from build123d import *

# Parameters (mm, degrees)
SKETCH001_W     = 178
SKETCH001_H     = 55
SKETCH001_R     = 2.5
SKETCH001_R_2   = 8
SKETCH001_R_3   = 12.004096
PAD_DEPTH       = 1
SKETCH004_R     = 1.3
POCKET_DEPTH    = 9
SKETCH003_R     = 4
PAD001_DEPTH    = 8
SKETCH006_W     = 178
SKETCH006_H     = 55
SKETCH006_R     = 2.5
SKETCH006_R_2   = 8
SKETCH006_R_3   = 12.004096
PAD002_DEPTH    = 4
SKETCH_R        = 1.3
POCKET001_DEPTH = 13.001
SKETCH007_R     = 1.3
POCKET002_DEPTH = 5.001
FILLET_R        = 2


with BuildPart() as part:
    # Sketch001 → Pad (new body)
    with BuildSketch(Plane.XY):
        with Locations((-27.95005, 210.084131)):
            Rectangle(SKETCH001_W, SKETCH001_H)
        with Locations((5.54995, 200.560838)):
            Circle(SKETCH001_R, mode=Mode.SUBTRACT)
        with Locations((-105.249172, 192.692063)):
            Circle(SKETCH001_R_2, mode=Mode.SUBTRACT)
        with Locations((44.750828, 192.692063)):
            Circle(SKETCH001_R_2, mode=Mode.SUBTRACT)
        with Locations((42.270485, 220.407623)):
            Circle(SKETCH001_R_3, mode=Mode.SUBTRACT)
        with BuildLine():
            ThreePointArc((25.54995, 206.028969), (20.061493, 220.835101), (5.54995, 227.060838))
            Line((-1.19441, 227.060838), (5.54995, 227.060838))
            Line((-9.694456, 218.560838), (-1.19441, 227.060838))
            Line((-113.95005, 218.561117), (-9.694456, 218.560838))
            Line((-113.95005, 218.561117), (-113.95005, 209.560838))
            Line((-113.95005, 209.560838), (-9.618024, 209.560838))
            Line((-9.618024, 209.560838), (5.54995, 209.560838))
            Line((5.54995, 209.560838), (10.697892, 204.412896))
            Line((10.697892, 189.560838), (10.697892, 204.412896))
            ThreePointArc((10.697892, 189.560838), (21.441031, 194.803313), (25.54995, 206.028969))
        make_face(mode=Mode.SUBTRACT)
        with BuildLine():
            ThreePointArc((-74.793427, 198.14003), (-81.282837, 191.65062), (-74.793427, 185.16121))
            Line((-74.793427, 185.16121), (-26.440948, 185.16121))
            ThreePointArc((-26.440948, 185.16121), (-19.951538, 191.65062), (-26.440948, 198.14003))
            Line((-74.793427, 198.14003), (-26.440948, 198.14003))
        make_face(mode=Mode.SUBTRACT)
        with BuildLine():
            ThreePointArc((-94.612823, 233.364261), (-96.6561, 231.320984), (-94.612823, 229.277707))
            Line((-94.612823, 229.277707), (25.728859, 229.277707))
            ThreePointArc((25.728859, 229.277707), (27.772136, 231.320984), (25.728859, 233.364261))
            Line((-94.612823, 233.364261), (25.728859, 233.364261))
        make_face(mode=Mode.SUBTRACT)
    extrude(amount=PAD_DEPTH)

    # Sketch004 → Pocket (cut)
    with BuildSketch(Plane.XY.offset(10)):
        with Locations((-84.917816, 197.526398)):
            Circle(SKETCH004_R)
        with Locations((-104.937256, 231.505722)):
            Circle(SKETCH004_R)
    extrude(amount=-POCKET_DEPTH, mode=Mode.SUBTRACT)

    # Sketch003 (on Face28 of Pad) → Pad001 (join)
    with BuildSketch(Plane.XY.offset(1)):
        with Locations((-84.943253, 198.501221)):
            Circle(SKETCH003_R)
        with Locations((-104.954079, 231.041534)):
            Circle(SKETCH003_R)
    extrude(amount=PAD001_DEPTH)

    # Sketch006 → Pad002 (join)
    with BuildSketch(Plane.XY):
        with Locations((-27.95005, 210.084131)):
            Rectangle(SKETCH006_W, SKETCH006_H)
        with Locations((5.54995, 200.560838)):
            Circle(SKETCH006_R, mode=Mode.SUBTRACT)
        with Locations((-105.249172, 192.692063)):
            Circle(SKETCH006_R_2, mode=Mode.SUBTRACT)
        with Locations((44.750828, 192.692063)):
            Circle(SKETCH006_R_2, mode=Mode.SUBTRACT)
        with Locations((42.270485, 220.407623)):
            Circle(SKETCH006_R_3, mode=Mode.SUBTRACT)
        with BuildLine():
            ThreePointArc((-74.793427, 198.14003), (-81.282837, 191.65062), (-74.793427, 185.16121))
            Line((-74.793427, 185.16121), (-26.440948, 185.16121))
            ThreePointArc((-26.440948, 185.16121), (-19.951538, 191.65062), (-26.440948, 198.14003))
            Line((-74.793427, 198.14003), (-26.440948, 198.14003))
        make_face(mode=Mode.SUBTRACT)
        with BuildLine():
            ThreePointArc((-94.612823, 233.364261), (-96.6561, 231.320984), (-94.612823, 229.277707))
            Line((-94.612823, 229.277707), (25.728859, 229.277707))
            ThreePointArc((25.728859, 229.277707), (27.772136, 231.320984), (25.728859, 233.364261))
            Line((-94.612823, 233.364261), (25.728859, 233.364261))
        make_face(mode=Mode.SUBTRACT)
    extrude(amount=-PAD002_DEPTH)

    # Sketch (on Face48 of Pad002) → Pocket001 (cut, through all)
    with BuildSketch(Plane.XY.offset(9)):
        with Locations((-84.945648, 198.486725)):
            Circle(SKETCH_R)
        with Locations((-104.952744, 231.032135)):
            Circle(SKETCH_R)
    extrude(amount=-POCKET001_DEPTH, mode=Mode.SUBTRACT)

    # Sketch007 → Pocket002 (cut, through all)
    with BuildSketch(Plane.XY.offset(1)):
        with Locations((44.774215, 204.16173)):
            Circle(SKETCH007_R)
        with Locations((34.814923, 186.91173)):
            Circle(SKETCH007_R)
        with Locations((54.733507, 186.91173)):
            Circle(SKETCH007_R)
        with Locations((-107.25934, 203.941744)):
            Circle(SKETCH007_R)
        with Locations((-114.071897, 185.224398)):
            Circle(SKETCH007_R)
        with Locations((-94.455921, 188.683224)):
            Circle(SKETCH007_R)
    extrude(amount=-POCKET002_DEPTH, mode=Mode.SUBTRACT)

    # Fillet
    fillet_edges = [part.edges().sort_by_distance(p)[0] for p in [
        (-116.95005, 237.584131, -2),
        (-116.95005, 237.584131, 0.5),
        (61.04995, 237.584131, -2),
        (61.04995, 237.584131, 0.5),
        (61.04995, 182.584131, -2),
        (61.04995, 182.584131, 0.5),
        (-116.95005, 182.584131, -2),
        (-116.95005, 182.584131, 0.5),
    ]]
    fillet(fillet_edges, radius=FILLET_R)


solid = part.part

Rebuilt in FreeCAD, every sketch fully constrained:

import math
import FreeCAD as App
import Part
import Sketcher
Q = App.Units.Quantity


def edges_at(feature, points):
    """Names of the edges that pass closest to the given points."""
    edges = feature.Shape.Edges
    near = lambda p: min(range(len(edges)), key=lambda i: edges[i].distToShape(Part.Vertex(*p))[0])
    return sorted({f"Edge{near(p) + 1}" for p in points})

doc = App.newDocument("Part")
body = doc.addObject("PartDesign::Body", "Body")

# Sketch on XY plane
sketch1 = doc.addObject("Sketcher::SketchObject", "Sketch")
body.addObject(sketch1)
sketch1.AttachmentSupport = (doc.XY_Plane, [""])
sketch1.MapMode = "FlatFace"
sketch1.addGeometry([
    Part.LineSegment(App.Vector(-117, 237.6, 0), App.Vector(-117, 182.6, 0)),  # 0
    Part.LineSegment(App.Vector(-117, 182.6, 0), App.Vector(61, 182.6, 0)),  # 1
    Part.LineSegment(App.Vector(61, 182.6, 0), App.Vector(61, 237.6, 0)),  # 2
    Part.LineSegment(App.Vector(61, 237.6, 0), App.Vector(-117, 237.6, 0)),  # 3
    Part.Circle(App.Vector(-105.2, 192.7, 0), App.Vector(0, 0, 1), 8),  # 4
    Part.ArcOfCircle(Part.Circle(App.Vector(-74.8, 191.7, 0), App.Vector(0, 0, 1), 6.5), math.radians(90), math.radians(270)),  # 5
    Part.LineSegment(App.Vector(-74.8, 198.1, 0), App.Vector(-26.4, 198.1, 0)),  # 6
    Part.ArcOfCircle(Part.Circle(App.Vector(-26.4, 191.7, 0), App.Vector(0, 0, 1), 6.5), math.radians(-90), math.radians(90)),  # 7
    Part.LineSegment(App.Vector(-26.4, 185.2, 0), App.Vector(-74.8, 185.2, 0)),  # 8
    Part.ArcOfCircle(Part.Circle(App.Vector(5.5, 207, 0), App.Vector(0, 0, 1), 20), math.radians(-3), math.radians(90)),  # 9
    Part.ArcOfCircle(Part.Circle(App.Vector(9.6, 205.5, 0), App.Vector(0, 0, 1), 16), math.radians(-86), math.radians(2)),  # 10
    Part.LineSegment(App.Vector(10.7, 189.6, 0), App.Vector(10.7, 204.4, 0)),  # 11
    Part.LineSegment(App.Vector(10.7, 204.4, 0), App.Vector(5.5, 209.6, 0)),  # 12
    Part.LineSegment(App.Vector(5.5, 209.6, 0), App.Vector(-114, 209.6, 0)),  # 13
    Part.LineSegment(App.Vector(-114, 209.6, 0), App.Vector(-114, 218.6, 0)),  # 14
    Part.LineSegment(App.Vector(-114, 218.6, 0), App.Vector(-9.7, 218.6, 0)),  # 15
    Part.LineSegment(App.Vector(-9.7, 218.6, 0), App.Vector(-1.2, 227.1, 0)),  # 16
    Part.LineSegment(App.Vector(-1.2, 227.1, 0), App.Vector(5.5, 227.1, 0)),  # 17
    Part.Circle(App.Vector(44.8, 192.7, 0), App.Vector(0, 0, 1), 8),  # 18
    Part.Circle(App.Vector(5.5, 200.6, 0), App.Vector(0, 0, 1), 2.5),  # 19
    Part.ArcOfCircle(Part.Circle(App.Vector(-94.6, 231.3, 0), App.Vector(0, 0, 1), 2), math.radians(90), math.radians(270)),  # 20
    Part.LineSegment(App.Vector(-94.6, 233.4, 0), App.Vector(25.7, 233.4, 0)),  # 21
    Part.ArcOfCircle(Part.Circle(App.Vector(25.7, 231.3, 0), App.Vector(0, 0, 1), 2), math.radians(-90), math.radians(90)),  # 22
    Part.LineSegment(App.Vector(25.7, 229.3, 0), App.Vector(-94.6, 229.3, 0)),  # 23
    Part.Circle(App.Vector(42.3, 220.4, 0), App.Vector(0, 0, 1), 12),  # 24
], False)
sketch1.addConstraint([
    Sketcher.Constraint("Coincident", 0, 2, 1, 1),
    Sketcher.Constraint("Coincident", 1, 2, 2, 1),
    Sketcher.Constraint("Coincident", 2, 2, 3, 1),
    Sketcher.Constraint("Coincident", 3, 2, 0, 1),
    Sketcher.Constraint("Tangent", 5, 1, 6, 1),
    Sketcher.Constraint("Tangent", 6, 2, 7, 2),
    Sketcher.Constraint("Tangent", 7, 1, 8, 1),
    Sketcher.Constraint("Tangent", 8, 2, 5, 2),
    Sketcher.Constraint("Coincident", 9, 1, 10, 2),
    Sketcher.Constraint("Coincident", 10, 1, 11, 1),
    Sketcher.Constraint("Coincident", 11, 2, 12, 1),
    Sketcher.Constraint("Coincident", 12, 2, 13, 1),
    Sketcher.Constraint("Coincident", 13, 2, 14, 1),
    Sketcher.Constraint("Coincident", 14, 2, 15, 1),
    Sketcher.Constraint("Coincident", 15, 2, 16, 1),
    Sketcher.Constraint("Coincident", 16, 2, 17, 1),
    Sketcher.Constraint("Tangent", 17, 2, 9, 2),
    Sketcher.Constraint("Tangent", 20, 1, 21, 1),
    Sketcher.Constraint("Tangent", 21, 2, 22, 2),
    Sketcher.Constraint("Tangent", 22, 1, 23, 1),
    Sketcher.Constraint("Tangent", 23, 2, 20, 2),
    Sketcher.Constraint("Vertical", 0),
    Sketcher.Constraint("Horizontal", 1),
    Sketcher.Constraint("Vertical", 2),
    Sketcher.Constraint("Horizontal", 3),
    Sketcher.Constraint("Horizontal", 6),
    Sketcher.Constraint("Horizontal", 8),
    Sketcher.Constraint("Vertical", 11),
    Sketcher.Constraint("Horizontal", 13),
    Sketcher.Constraint("Vertical", 14),
    Sketcher.Constraint("Horizontal", 17),
    Sketcher.Constraint("Horizontal", 21),
    Sketcher.Constraint("Horizontal", 23),
    Sketcher.Constraint("Equal", 4, 18),
    Sketcher.Constraint("Horizontal", 4, 3, 18, 3),
    Sketcher.Constraint("Vertical", 9, 3, 19, 3),
    Sketcher.Constraint("Vertical", 19, 3, 12, 2),
    Sketcher.Constraint("Diameter", 4, Q("16 mm")),
    Sketcher.Constraint("Diameter", 19, Q("5 mm")),
    Sketcher.Constraint("DistanceX", 1, 1, 1, 2, Q("178 mm")),
    Sketcher.Constraint("DistanceY", 0, 2, 0, 1, Q("55 mm")),
    Sketcher.Constraint("Angle", 12, Q("135 deg")),
    Sketcher.Constraint("DistanceX", 13, 2, 13, 1, Q("119.5 mm")),
    Sketcher.Constraint("DistanceX", 4, 3, 18, 3, Q("150 mm")),
    Sketcher.Constraint("DistanceX", 9, 3, 9, 1, Q("19.999999 mm")),
    Sketcher.Constraint("DistanceY", 10, 1, 19, 3, Q("11 mm")),
    Sketcher.Constraint("DistanceY", 19, 3, 12, 2, Q("9 mm")),
    Sketcher.Constraint("DistanceX", 0, 2, 13, 2, Q("3 mm")),
    Sketcher.Constraint("DistanceY", 12, 2, 15, 2, Q("9 mm")),
    Sketcher.Constraint("DistanceY", 15, 2, 16, 2, Q("8.5 mm")),
    Sketcher.Constraint("Radius", 5, Q("6.48941 mm")),
    Sketcher.Constraint("Radius", 9, Q("20.025312 mm")),
    Sketcher.Constraint("Radius", 10, Q("15.995419 mm")),
    Sketcher.Constraint("Diameter", 24, Q("24.008192 mm")),
    Sketcher.Constraint("Radius", 20, Q("2.043277 mm")),
    Sketcher.Constraint("DistanceX", 6, 1, 6, 2, Q("48.352479 mm")),
    Sketcher.Constraint("DistanceX", 17, 1, 17, 2, Q("6.74436 mm")),
    Sketcher.Constraint("DistanceY", 14, 1, 14, 2, Q("9.000279 mm")),
    Sketcher.Constraint("DistanceX", 7, 3, 9, 3, Q("31.990899 mm")),
    Sketcher.Constraint("DistanceX", 10, 3, 22, 3, Q("16.166098 mm")),
    Sketcher.Constraint("DistanceY", 0, 2, 5, 1, Q("15.555899 mm")),
    Sketcher.Constraint("DistanceY", 6, 2, 10, 3, Q("7.375898 mm")),
    Sketcher.Constraint("DistanceX", 16, 2, 11, 2, Q("11.892302 mm")),
    Sketcher.Constraint("DistanceX", 21, 1, 21, 2, Q("120.341682 mm")),
    Sketcher.Constraint("DistanceX", 4, 3, -1, 1, Q("105.249172 mm")),
    Sketcher.Constraint("DistanceY", -1, 1, 5, 3, Q("191.65062 mm")),
    Sketcher.Constraint("DistanceX", -1, 1, 9, 3, Q("5.549951 mm")),
    Sketcher.Constraint("DistanceY", -1, 1, 20, 1, Q("233.364261 mm")),
    Sketcher.Constraint("DistanceY", 4, 3, 20, 3, Q("38.628921 mm")),
    Sketcher.Constraint("DistanceY", 24, 3, 22, 3, Q("10.913361 mm")),
    Sketcher.Constraint("Distance", 15, Q("104.255594 mm")),
    Sketcher.Constraint("DistanceX", -1, 1, 24, 3, Q("42.270485 mm")),
])
pad1 = doc.addObject("PartDesign::Pad", "Pad")
body.addObject(pad1)
pad1.Profile = sketch1
pad1.Length = 1

# Sketch on XY plane
sketch2 = doc.addObject("Sketcher::SketchObject", "Sketch001")
body.addObject(sketch2)
sketch2.AttachmentSupport = (doc.XY_Plane, [""])
sketch2.MapMode = "FlatFace"
sketch2.AttachmentOffset = App.Placement(App.Vector(0, 0, 10), App.Rotation())
sketch2.addGeometry([
    Part.Circle(App.Vector(-84.9, 197.5, 0), App.Vector(0, 0, 1), 1.3),
    Part.Circle(App.Vector(-104.9, 231.5, 0), App.Vector(0, 0, 1), 1.3),
], False)
sketch2.addConstraint([
    Sketcher.Constraint("Equal", 0, 1),
    Sketcher.Constraint("Diameter", 0, Q("2.6 mm")),
    Sketcher.Constraint("DistanceY", -1, 1, 0, 3, Q("197.526398 mm")),
    Sketcher.Constraint("DistanceY", -1, 1, 1, 3, Q("231.505722 mm")),
    Sketcher.Constraint("DistanceX", 1, 3, 0, 3, Q("20.01944 mm")),
    Sketcher.Constraint("DistanceX", 0, 3, -1, 1, Q("84.917816 mm")),
])
pocket1 = doc.addObject("PartDesign::Pocket", "Pocket")
body.addObject(pocket1)
pocket1.Profile = sketch2
pocket1.Length = 9

# Sketch on XY plane
sketch3 = doc.addObject("Sketcher::SketchObject", "Sketch002")
body.addObject(sketch3)
sketch3.AttachmentSupport = (doc.XY_Plane, [""])
sketch3.MapMode = "FlatFace"
sketch3.AttachmentOffset = App.Placement(App.Vector(0, 0, 1), App.Rotation())
sketch3.addGeometry([
    Part.Circle(App.Vector(-84.9, 198.5, 0), App.Vector(0, 0, 1), 4),
    Part.Circle(App.Vector(-105, 231, 0), App.Vector(0, 0, 1), 4),
], False)
sketch3.addConstraint([
    Sketcher.Constraint("Equal", 0, 1),
    Sketcher.Constraint("Diameter", 0, Q("8 mm")),
    Sketcher.Constraint("DistanceY", -1, 1, 0, 3, Q("198.501221 mm")),
    Sketcher.Constraint("DistanceX", 1, 3, -1, 1, Q("104.954079 mm")),
    Sketcher.Constraint("DistanceX", 0, 3, -1, 1, Q("84.943253 mm")),
    Sketcher.Constraint("DistanceY", -1, 1, 1, 3, Q("231.041534 mm")),
])
pad2 = doc.addObject("PartDesign::Pad", "Pad001")
body.addObject(pad2)
pad2.Profile = sketch3
pad2.Length = 8

# Sketch on XY plane
sketch4 = doc.addObject("Sketcher::SketchObject", "Sketch003")
body.addObject(sketch4)
sketch4.AttachmentSupport = (doc.XY_Plane, [""])
sketch4.MapMode = "FlatFace"
sketch4.addGeometry([
    Part.LineSegment(App.Vector(-117, 237.6, 0), App.Vector(-117, 182.6, 0)),  # 0
    Part.LineSegment(App.Vector(-117, 182.6, 0), App.Vector(61, 182.6, 0)),  # 1
    Part.LineSegment(App.Vector(61, 182.6, 0), App.Vector(61, 237.6, 0)),  # 2
    Part.LineSegment(App.Vector(61, 237.6, 0), App.Vector(-117, 237.6, 0)),  # 3
    Part.Circle(App.Vector(-105.2, 192.7, 0), App.Vector(0, 0, 1), 8),  # 4
    Part.ArcOfCircle(Part.Circle(App.Vector(-74.8, 191.7, 0), App.Vector(0, 0, 1), 6.5), math.radians(90), math.radians(270)),  # 5
    Part.LineSegment(App.Vector(-74.8, 198.1, 0), App.Vector(-26.4, 198.1, 0)),  # 6
    Part.ArcOfCircle(Part.Circle(App.Vector(-26.4, 191.7, 0), App.Vector(0, 0, 1), 6.5), math.radians(-90), math.radians(90)),  # 7
    Part.LineSegment(App.Vector(-26.4, 185.2, 0), App.Vector(-74.8, 185.2, 0)),  # 8
    Part.Circle(App.Vector(44.8, 192.7, 0), App.Vector(0, 0, 1), 8),  # 9
    Part.Circle(App.Vector(5.5, 200.6, 0), App.Vector(0, 0, 1), 2.5),  # 10
    Part.ArcOfCircle(Part.Circle(App.Vector(-94.6, 231.3, 0), App.Vector(0, 0, 1), 2), math.radians(90), math.radians(270)),  # 11
    Part.LineSegment(App.Vector(-94.6, 233.4, 0), App.Vector(25.7, 233.4, 0)),  # 12
    Part.ArcOfCircle(Part.Circle(App.Vector(25.7, 231.3, 0), App.Vector(0, 0, 1), 2), math.radians(-90), math.radians(90)),  # 13
    Part.LineSegment(App.Vector(25.7, 229.3, 0), App.Vector(-94.6, 229.3, 0)),  # 14
    Part.Circle(App.Vector(42.3, 220.4, 0), App.Vector(0, 0, 1), 12),  # 15
], False)
sketch4.addConstraint([
    Sketcher.Constraint("Coincident", 0, 2, 1, 1),
    Sketcher.Constraint("Coincident", 1, 2, 2, 1),
    Sketcher.Constraint("Coincident", 2, 2, 3, 1),
    Sketcher.Constraint("Coincident", 3, 2, 0, 1),
    Sketcher.Constraint("Tangent", 5, 1, 6, 1),
    Sketcher.Constraint("Tangent", 6, 2, 7, 2),
    Sketcher.Constraint("Tangent", 7, 1, 8, 1),
    Sketcher.Constraint("Tangent", 8, 2, 5, 2),
    Sketcher.Constraint("Tangent", 11, 1, 12, 1),
    Sketcher.Constraint("Tangent", 12, 2, 13, 2),
    Sketcher.Constraint("Tangent", 13, 1, 14, 1),
    Sketcher.Constraint("Tangent", 14, 2, 11, 2),
    Sketcher.Constraint("Vertical", 0),
    Sketcher.Constraint("Horizontal", 1),
    Sketcher.Constraint("Vertical", 2),
    Sketcher.Constraint("Horizontal", 3),
    Sketcher.Constraint("Horizontal", 6),
    Sketcher.Constraint("Horizontal", 8),
    Sketcher.Constraint("Horizontal", 12),
    Sketcher.Constraint("Horizontal", 14),
    Sketcher.Constraint("Equal", 4, 9),
    Sketcher.Constraint("Horizontal", 4, 3, 9, 3),
    Sketcher.Constraint("Diameter", 4, Q("16 mm")),
    Sketcher.Constraint("Diameter", 10, Q("5 mm")),
    Sketcher.Constraint("DistanceX", 1, 1, 1, 2, Q("178 mm")),
    Sketcher.Constraint("DistanceY", 0, 2, 0, 1, Q("55 mm")),
    Sketcher.Constraint("DistanceX", 4, 3, 9, 3, Q("150 mm")),
    Sketcher.Constraint("DistanceX", 0, 2, 10, 3, Q("122.5 mm")),
    Sketcher.Constraint("Radius", 5, Q("6.48941 mm")),
    Sketcher.Constraint("Diameter", 15, Q("24.008192 mm")),
    Sketcher.Constraint("Radius", 11, Q("2.043277 mm")),
    Sketcher.Constraint("DistanceX", 6, 1, 6, 2, Q("48.352479 mm")),
    Sketcher.Constraint("DistanceX", 7, 3, 1, 2, Q("87.490898 mm")),
    Sketcher.Constraint("DistanceY", 0, 2, 5, 1, Q("15.555899 mm")),
    Sketcher.Constraint("DistanceY", 4, 3, 11, 1, Q("40.672198 mm")),
    Sketcher.Constraint("DistanceX", 12, 1, 12, 2, Q("120.341682 mm")),
    Sketcher.Constraint("DistanceX", 4, 3, -1, 1, Q("105.249172 mm")),
    Sketcher.Constraint("DistanceY", -1, 1, 5, 3, Q("191.65062 mm")),
    Sketcher.Constraint("DistanceX", -1, 1, 10, 3, Q("5.54995 mm")),
    Sketcher.Constraint("DistanceX", -1, 1, 13, 3, Q("25.728859 mm")),
    Sketcher.Constraint("DistanceY", -1, 1, 11, 1, Q("233.364261 mm")),
    Sketcher.Constraint("DistanceY", 15, 3, 13, 3, Q("10.913361 mm")),
    Sketcher.Constraint("DistanceX", 5, 3, 15, 3, Q("117.063912 mm")),
    Sketcher.Constraint("DistanceY", 10, 3, 13, 1, Q("28.716869 mm")),
])
pad3 = doc.addObject("PartDesign::Pad", "Pad002")
body.addObject(pad3)
pad3.Profile = sketch4
pad3.Length = 4
pad3.Reversed = True

# Sketch on XY plane
sketch5 = doc.addObject("Sketcher::SketchObject", "Sketch004")
body.addObject(sketch5)
sketch5.AttachmentSupport = (doc.XY_Plane, [""])
sketch5.MapMode = "FlatFace"
sketch5.AttachmentOffset = App.Placement(App.Vector(0, 0, 9), App.Rotation())
sketch5.addGeometry([
    Part.Circle(App.Vector(-84.9, 198.5, 0), App.Vector(0, 0, 1), 1.3),
    Part.Circle(App.Vector(-105, 231, 0), App.Vector(0, 0, 1), 1.3),
], False)
sketch5.addConstraint([
    Sketcher.Constraint("Equal", 0, 1),
    Sketcher.Constraint("Diameter", 0, Q("2.6 mm")),
    Sketcher.Constraint("DistanceX", 0, 3, -1, 1, Q("84.945648 mm")),
    Sketcher.Constraint("DistanceY", 0, 3, 1, 3, Q("32.54541 mm")),
    Sketcher.Constraint("DistanceY", -1, 1, 0, 3, Q("198.486725 mm")),
    Sketcher.Constraint("DistanceX", 1, 3, -1, 1, Q("104.952744 mm")),
])
pocket2 = doc.addObject("PartDesign::Pocket", "Pocket001")
body.addObject(pocket2)
pocket2.Profile = sketch5
pocket2.Type = "ThroughAll"

# Sketch on XY plane
sketch6 = doc.addObject("Sketcher::SketchObject", "Sketch005")
body.addObject(sketch6)
sketch6.AttachmentSupport = (doc.XY_Plane, [""])
sketch6.MapMode = "FlatFace"
sketch6.AttachmentOffset = App.Placement(App.Vector(0, 0, 1), App.Rotation())
sketch6.addGeometry([
    Part.Circle(App.Vector(44.8, 204.2, 0), App.Vector(0, 0, 1), 1.3),  # 0
    Part.Circle(App.Vector(34.8, 186.9, 0), App.Vector(0, 0, 1), 1.3),  # 1
    Part.Circle(App.Vector(54.7, 186.9, 0), App.Vector(0, 0, 1), 1.3),  # 2
    Part.Circle(App.Vector(-107.3, 203.9, 0), App.Vector(0, 0, 1), 1.3),  # 3
    Part.Circle(App.Vector(-114.1, 185.2, 0), App.Vector(0, 0, 1), 1.3),  # 4
    Part.Circle(App.Vector(-94.5, 188.7, 0), App.Vector(0, 0, 1), 1.3),  # 5
], False)
sketch6.addConstraint([
    Sketcher.Constraint("Equal", 0, 1),
    Sketcher.Constraint("Equal", 1, 2),
    Sketcher.Constraint("Equal", 2, 3),
    Sketcher.Constraint("Equal", 3, 4),
    Sketcher.Constraint("Equal", 4, 5),
    Sketcher.Constraint("Horizontal", 1, 3, 2, 3),
    Sketcher.Constraint("Diameter", 0, Q("2.6 mm")),
    Sketcher.Constraint("DistanceY", 1, 3, 0, 3, Q("17.25 mm")),
    Sketcher.Constraint("DistanceY", -1, 1, 4, 3, Q("185.224398 mm")),
    Sketcher.Constraint("DistanceY", -1, 1, 0, 3, Q("204.16173 mm")),
    Sketcher.Constraint("DistanceX", 3, 3, -1, 1, Q("107.25934 mm")),
    Sketcher.Constraint("DistanceX", 5, 3, -1, 1, Q("94.455921 mm")),
    Sketcher.Constraint("DistanceX", 1, 3, 0, 3, Q("9.959292 mm")),
    Sketcher.Constraint("DistanceX", 4, 3, 1, 3, Q("148.88682 mm")),
    Sketcher.Constraint("DistanceY", 5, 3, 3, 3, Q("15.25852 mm")),
    Sketcher.Constraint("DistanceX", 5, 3, 2, 3, Q("149.189428 mm")),
    Sketcher.Constraint("DistanceX", -1, 1, 0, 3, Q("44.774215 mm")),
    Sketcher.Constraint("DistanceY", -1, 1, 3, 3, Q("203.941744 mm")),
])
pocket3 = doc.addObject("PartDesign::Pocket", "Pocket002")
body.addObject(pocket3)
pocket3.Profile = sketch6
pocket3.Type = "ThroughAll"
doc.recompute()

fillet = doc.addObject("PartDesign::Fillet", "Fillet")
body.addObject(fillet)
fillet.Base = (pocket3, edges_at(pocket3, [
    (-116.95, 237.584, -1.5),
    (-116.95, 237.584, -1.5),
    (61.05, 237.584, -1.5),
    (61.05, 237.584, -1.5),
    (61.05, 182.584, -1.5),
    (61.05, 182.584, -1.5),
    (-116.95, 182.584, -1.5),
    (-116.95, 182.584, -1.5),
]))
fillet.Radius = 2

doc.recompute()
